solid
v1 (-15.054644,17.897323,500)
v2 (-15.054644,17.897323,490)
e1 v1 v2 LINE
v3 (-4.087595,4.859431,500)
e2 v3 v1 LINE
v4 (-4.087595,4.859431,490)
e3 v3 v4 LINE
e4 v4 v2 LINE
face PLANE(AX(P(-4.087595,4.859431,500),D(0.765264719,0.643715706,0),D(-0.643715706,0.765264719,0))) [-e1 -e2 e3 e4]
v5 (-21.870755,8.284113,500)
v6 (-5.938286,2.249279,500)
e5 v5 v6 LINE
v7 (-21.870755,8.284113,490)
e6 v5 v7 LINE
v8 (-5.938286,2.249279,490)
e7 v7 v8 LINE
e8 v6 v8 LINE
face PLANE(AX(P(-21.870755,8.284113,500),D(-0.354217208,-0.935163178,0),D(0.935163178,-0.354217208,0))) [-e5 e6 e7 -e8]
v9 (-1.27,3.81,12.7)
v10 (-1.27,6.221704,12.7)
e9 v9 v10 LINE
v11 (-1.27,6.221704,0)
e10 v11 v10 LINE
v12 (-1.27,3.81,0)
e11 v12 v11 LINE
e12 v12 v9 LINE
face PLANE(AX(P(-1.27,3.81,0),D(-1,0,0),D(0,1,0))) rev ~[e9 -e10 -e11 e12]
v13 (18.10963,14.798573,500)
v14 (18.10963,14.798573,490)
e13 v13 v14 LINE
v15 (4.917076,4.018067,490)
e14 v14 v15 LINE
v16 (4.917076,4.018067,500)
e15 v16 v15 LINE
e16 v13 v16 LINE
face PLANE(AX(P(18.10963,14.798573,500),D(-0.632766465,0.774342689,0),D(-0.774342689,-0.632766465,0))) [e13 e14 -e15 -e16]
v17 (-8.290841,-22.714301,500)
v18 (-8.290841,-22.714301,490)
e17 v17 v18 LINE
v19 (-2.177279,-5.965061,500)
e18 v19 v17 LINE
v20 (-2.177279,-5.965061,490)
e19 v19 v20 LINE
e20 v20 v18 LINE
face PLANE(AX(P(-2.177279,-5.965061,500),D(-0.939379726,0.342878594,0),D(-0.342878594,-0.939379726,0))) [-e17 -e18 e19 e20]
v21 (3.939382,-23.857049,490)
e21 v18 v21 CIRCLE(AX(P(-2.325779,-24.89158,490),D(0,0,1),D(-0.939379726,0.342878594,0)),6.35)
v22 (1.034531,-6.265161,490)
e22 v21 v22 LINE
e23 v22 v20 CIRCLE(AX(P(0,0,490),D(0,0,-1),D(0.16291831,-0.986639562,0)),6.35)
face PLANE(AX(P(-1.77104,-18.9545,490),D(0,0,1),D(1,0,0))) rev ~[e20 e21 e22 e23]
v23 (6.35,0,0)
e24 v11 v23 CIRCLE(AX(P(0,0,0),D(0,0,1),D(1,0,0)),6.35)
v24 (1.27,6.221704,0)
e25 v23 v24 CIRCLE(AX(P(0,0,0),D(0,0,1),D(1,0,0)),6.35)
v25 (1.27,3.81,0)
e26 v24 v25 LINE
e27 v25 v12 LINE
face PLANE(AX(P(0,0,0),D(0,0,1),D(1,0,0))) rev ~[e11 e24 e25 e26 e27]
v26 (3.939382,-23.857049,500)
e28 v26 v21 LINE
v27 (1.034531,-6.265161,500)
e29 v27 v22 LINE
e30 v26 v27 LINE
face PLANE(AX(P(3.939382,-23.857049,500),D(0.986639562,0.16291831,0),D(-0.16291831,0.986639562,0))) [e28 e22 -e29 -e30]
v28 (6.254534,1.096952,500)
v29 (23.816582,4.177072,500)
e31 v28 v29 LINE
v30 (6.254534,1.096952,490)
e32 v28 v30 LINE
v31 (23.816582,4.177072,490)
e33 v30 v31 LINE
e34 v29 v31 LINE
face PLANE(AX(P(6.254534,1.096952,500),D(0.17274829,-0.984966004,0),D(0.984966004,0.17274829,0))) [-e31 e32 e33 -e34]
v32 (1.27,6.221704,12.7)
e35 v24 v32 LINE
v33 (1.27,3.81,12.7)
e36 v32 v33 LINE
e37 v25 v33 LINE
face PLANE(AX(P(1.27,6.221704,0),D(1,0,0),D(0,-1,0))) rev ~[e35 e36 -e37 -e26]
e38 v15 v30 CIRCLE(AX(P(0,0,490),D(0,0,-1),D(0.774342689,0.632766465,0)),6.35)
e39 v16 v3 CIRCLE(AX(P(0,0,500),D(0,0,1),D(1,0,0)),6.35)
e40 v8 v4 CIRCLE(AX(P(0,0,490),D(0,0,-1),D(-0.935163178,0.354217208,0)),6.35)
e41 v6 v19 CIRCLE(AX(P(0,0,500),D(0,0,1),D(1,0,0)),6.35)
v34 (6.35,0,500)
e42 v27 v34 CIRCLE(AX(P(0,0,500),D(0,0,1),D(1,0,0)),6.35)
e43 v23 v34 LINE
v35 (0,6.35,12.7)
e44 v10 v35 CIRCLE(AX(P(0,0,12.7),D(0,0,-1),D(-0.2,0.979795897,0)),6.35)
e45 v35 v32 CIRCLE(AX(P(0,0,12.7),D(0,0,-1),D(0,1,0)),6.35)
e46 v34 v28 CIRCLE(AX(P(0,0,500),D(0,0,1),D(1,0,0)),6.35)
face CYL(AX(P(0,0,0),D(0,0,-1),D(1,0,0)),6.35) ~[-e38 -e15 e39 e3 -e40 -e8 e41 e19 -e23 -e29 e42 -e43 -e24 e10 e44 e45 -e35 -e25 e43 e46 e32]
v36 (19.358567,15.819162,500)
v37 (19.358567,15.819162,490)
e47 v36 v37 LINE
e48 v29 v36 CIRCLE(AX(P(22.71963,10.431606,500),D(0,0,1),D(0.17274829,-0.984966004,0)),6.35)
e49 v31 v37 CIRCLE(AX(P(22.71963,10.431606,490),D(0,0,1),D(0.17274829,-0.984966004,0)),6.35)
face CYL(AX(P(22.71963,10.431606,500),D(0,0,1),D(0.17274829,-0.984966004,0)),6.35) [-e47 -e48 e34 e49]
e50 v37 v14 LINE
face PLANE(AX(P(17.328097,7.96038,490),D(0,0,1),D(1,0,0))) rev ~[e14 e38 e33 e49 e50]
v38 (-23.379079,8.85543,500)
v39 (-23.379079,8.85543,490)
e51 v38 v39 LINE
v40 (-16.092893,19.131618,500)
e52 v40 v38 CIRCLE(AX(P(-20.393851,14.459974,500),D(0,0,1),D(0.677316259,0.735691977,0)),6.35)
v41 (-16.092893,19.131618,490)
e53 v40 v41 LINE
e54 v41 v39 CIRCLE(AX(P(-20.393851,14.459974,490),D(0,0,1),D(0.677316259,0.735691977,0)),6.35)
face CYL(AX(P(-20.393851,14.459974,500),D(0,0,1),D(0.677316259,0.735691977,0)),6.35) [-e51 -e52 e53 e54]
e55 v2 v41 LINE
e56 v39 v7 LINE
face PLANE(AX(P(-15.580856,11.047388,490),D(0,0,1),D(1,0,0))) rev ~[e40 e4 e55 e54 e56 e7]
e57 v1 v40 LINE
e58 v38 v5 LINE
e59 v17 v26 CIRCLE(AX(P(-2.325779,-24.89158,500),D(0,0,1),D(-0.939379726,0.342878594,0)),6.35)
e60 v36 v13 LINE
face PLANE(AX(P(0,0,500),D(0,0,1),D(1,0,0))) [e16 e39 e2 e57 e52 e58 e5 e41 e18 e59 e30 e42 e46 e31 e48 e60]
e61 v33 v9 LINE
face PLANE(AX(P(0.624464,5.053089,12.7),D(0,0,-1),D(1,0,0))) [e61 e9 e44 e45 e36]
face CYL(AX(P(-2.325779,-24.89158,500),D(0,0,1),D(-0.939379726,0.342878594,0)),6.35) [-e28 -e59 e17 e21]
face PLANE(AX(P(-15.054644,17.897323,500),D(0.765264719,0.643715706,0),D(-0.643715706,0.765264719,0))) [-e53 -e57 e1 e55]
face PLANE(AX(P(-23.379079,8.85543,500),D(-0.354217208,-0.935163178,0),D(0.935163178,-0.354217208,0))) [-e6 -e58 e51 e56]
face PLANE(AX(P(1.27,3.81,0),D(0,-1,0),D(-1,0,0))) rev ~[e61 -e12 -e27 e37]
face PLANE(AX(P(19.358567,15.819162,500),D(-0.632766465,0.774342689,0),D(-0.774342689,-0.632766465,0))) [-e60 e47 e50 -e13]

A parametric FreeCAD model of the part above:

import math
import FreeCAD as App
import Part
import Sketcher

V = App.Vector
Q = App.Units.Quantity

doc = App.newDocument("Part")
params = doc.addObject("Spreadsheet::Sheet", "Params")
for row, (alias, value) in enumerate([
    ("sketch1_diameter", "12.7 mm"),
    ("pad1_length", "500 mm"),
    ("sketch2_radius", "6.35 mm"),
    ("pad2_length", "10 mm"),
    ("sketch3_radius", "6.35 mm"),
    ("sketch3_width", "2.54 mm"),
    ("pocket1_length", "12.7 mm"),
], start=1):
    params.set(f"A{row}", alias)
    params.set(f"B{row}", "=" + value)
    params.setAlias(f"B{row}", alias)

body = doc.addObject("PartDesign::Body", "Body")

# Sketch on XY plane
sketch1 = body.newObject("Sketcher::SketchObject", "Sketch")
sketch1.AttachmentSupport = (doc.getObject("XY_Plane"), [""])
sketch1.MapMode = "FlatFace"
sketch1.addGeometry(Part.Circle(V(0, 0, 0), V(0, 0, 1), 6), False)
sketch1.addConstraint([
    Sketcher.Constraint("Coincident", 0, 3, -1, 1),
    Sketcher.Constraint("Diameter", 0, Q("12.7 mm")),
])
sketch1.setExpression("Constraints[1]", "Params.sketch1_diameter")
pad1 = body.newObject("PartDesign::Pad", "Pad")
pad1.Profile = sketch1
pad1.setExpression("Length", "Params.pad1_length")

# Sketch on XY plane
sketch2 = body.newObject("Sketcher::SketchObject", "Sketch001")
sketch2.AttachmentSupport = (doc.getObject("XY_Plane"), [""])
sketch2.MapMode = "FlatFace"
sketch2.AttachmentOffset = App.Placement(V(0, 0, 500), App.Rotation())
sketch2.addGeometry([
    Part.LineSegment(V(-4.1, 4.9, 0), V(-15.1, 17.9, 0)),  # 0
    Part.LineSegment(V(-15.1, 17.9, 0), V(-16.1, 19.1, 0)),  # 1
    Part.ArcOfCircle(Part.Circle(V(-20.4, 14.5, 0), V(0, 0, 1), 6.3), math.radians(47), math.radians(242)),  # 2
    Part.LineSegment(V(-23.4, 8.9, 0), V(-21.9, 8.3, 0)),  # 3
    Part.LineSegment(V(-21.9, 8.3, 0), V(-5.9, 2.2, 0)),  # 4
    Part.ArcOfCircle(Part.Circle(V(0, 0, 0), V(0, 0, 1), 6.3), math.radians(130), math.radians(159)),  # 5
    Part.LineSegment(V(18.1, 14.8, 0), V(4.9, 4, 0)),  # 6
    Part.ArcOfCircle(Part.Circle(V(0, 0, 0), V(0, 0, 1), 6.3), math.radians(10), math.radians(39)),  # 7
    Part.LineSegment(V(6.3, 1.1, 0), V(23.8, 4.2, 0)),  # 8
    Part.ArcOfCircle(Part.Circle(V(22.7, 10.4, 0), V(0, 0, 1), 6.3), math.radians(-80), math.radians(122)),  # 9
    Part.LineSegment(V(19.4, 15.8, 0), V(18.1, 14.8, 0)),  # 10
    Part.LineSegment(V(3.9, -23.9, 0), V(1, -6.3, 0)),  # 11
    Part.ArcOfCircle(Part.Circle(V(0, 0, 0), V(0, 0, 1), 6.3), math.radians(-110), math.radians(-81)),  # 12
    Part.LineSegment(V(-2.2, -6, 0), V(-8.3, -22.7, 0)),  # 13
    Part.ArcOfCircle(Part.Circle(V(-2.3, -24.9, 0), V(0, 0, 1), 6.3), math.radians(160), math.radians(369)),  # 14
], False)
sketch2.addConstraint([
    Sketcher.Constraint("Coincident", 0, 2, 1, 1),
    Sketcher.Constraint("Coincident", 1, 2, 2, 1),
    Sketcher.Constraint("Coincident", 2, 2, 3, 1),
    Sketcher.Constraint("Coincident", 3, 2, 4, 1),
    Sketcher.Constraint("Coincident", 4, 2, 5, 2),
    Sketcher.Constraint("Coincident", 5, 1, 0, 1),
    Sketcher.Constraint("Coincident", 6, 2, 7, 2),
    Sketcher.Constraint("Coincident", 7, 1, 8, 1),
    Sketcher.Constraint("Tangent", 8, 2, 9, 1),
    Sketcher.Constraint("Coincident", 9, 2, 10, 1),
    Sketcher.Constraint("Coincident", 10, 2, 6, 1),
    Sketcher.Constraint("Coincident", 11, 2, 12, 2),
    Sketcher.Constraint("Coincident", 12, 1, 13, 1),
    Sketcher.Constraint("Tangent", 13, 2, 14, 1),
    Sketcher.Constraint("Tangent", 14, 2, 11, 1),
    Sketcher.Constraint("Coincident", 5, 3, -1, 1),
    Sketcher.Constraint("Coincident", 7, 3, -1, 1),
    Sketcher.Constraint("Coincident", 12, 3, -1, 1),
    Sketcher.Constraint("Equal", 2, 5),
    Sketcher.Constraint("Equal", 5, 7),
    Sketcher.Constraint("Equal", 7, 9),
    Sketcher.Constraint("Equal", 9, 12),
    Sketcher.Constraint("Equal", 12, 14),
    Sketcher.Constraint("Parallel", 0, 1),
    Sketcher.Constraint("Parallel", 3, 4),
    Sketcher.Constraint("Parallel", 6, 10),
    Sketcher.Constraint("Equal", 1, 3),
    Sketcher.Constraint("Equal", 0, 4),
    Sketcher.Constraint("Equal", 4, 6),
    Sketcher.Constraint("Equal", 3, 10),
    Sketcher.Constraint("Equal", 8, 11),
    Sketcher.Constraint("Equal", 11, 13),
    Sketcher.Constraint("Radius", 2, Q("6.35 mm")),
    Sketcher.Constraint("DistanceX", 10, 2, 9, 3, Q("4.61 mm")),
    Sketcher.Constraint("Distance", 0, Q("17.0371 mm")),
    Sketcher.Constraint("Distance", 1, Q("1.6129 mm")),
    Sketcher.Constraint("DistanceY", 13, 2, -1, 1, Q("22.714301 mm")),
    Sketcher.Constraint("DistanceY", 8, 2, 10, 2, Q("10.621501 mm")),
    Sketcher.Constraint("DistanceY", 11, 2, 12, 1, Q("0.3001 mm")),
    Sketcher.Constraint("DistanceX", 2, 3, -1, 1, Q("20.393851 mm")),
    Sketcher.Constraint("DistanceX", -1, 1, 9, 3, Q("22.71963 mm")),
    Sketcher.Constraint("DistanceX", 14, 3, -1, 1, Q("2.325779 mm")),
    Sketcher.Constraint("DistanceX", 2, 2, -1, 1, Q("23.379079 mm")),
    Sketcher.Constraint("DistanceY", -1, 1, 4, 2, Q("2.249279 mm")),
    Sketcher.Constraint("DistanceY", -1, 1, 5, 1, Q("4.859431 mm")),
])
sketch2.setExpression("Constraints[32]", "Params.sketch2_radius")
pad2 = body.newObject("PartDesign::Pad", "Pad001")
pad2.Profile = sketch2
pad2.setExpression("Length", "Params.pad2_length")
pad2.Reversed = True

# Sketch on XY plane
sketch3 = body.newObject("Sketcher::SketchObject", "Sketch002")
sketch3.AttachmentSupport = (doc.getObject("XY_Plane"), [""])
sketch3.MapMode = "FlatFace"
sketch3.addGeometry([
    Part.LineSegment(V(1.3, 3.8, 0), V(-1.3, 3.8, 0)),  # 0
    Part.LineSegment(V(-1.3, 3.8, 0), V(-1.3, 6.2, 0)),  # 1
    Part.ArcOfCircle(Part.Circle(V(0, 0, 0), V(0, 0, 1), 6.3), math.radians(90), math.radians(101.54)),  # 2
    Part.ArcOfCircle(Part.Circle(V(0, 0, 0), V(0, 0, 1), 6.3), math.radians(78.46), math.radians(90)),  # 3
    Part.LineSegment(V(1.3, 6.2, 0), V(1.3, 3.8, 0)),  # 4
], False)
sketch3.addConstraint([
    Sketcher.Constraint("Coincident", 0, 2, 1, 1),
    Sketcher.Constraint("Coincident", 1, 2, 2, 2),
    Sketcher.Constraint("Tangent", 2, 1, 3, 2),
    Sketcher.Constraint("Coincident", 3, 1, 4, 1),
    Sketcher.Constraint("Coincident", 4, 2, 0, 1),
    Sketcher.Constraint("Horizontal", 0),
    Sketcher.Constraint("Vertical", 1),
    Sketcher.Constraint("Vertical", 4),
    Sketcher.Constraint("Coincident", 2, 3, -1, 1),
    Sketcher.Constraint("Equal", 2, 3),
    Sketcher.Constraint("PointOnObject", 2, 1, -2),
    Sketcher.Constraint("Horizontal", 1, 2, 3, 1),
    Sketcher.Constraint("Radius", 2, Q("6.35 mm")),
    Sketcher.Constraint("DistanceX", 0, 2, 0, 1, Q("2.54 mm")),
    Sketcher.Constraint("DistanceY", -1, 1, 0, 2, Q("3.81 mm")),
])
sketch3.setExpression("Constraints[12]", "Params.sketch3_radius")
sketch3.setExpression("Constraints[13]", "Params.sketch3_width")
pocket1 = body.newObject("PartDesign::Pocket", "Pocket")
pocket1.Profile = sketch3
pocket1.setExpression("Length", "Params.pocket1_length")
pocket1.Reversed = True

doc.recompute()
